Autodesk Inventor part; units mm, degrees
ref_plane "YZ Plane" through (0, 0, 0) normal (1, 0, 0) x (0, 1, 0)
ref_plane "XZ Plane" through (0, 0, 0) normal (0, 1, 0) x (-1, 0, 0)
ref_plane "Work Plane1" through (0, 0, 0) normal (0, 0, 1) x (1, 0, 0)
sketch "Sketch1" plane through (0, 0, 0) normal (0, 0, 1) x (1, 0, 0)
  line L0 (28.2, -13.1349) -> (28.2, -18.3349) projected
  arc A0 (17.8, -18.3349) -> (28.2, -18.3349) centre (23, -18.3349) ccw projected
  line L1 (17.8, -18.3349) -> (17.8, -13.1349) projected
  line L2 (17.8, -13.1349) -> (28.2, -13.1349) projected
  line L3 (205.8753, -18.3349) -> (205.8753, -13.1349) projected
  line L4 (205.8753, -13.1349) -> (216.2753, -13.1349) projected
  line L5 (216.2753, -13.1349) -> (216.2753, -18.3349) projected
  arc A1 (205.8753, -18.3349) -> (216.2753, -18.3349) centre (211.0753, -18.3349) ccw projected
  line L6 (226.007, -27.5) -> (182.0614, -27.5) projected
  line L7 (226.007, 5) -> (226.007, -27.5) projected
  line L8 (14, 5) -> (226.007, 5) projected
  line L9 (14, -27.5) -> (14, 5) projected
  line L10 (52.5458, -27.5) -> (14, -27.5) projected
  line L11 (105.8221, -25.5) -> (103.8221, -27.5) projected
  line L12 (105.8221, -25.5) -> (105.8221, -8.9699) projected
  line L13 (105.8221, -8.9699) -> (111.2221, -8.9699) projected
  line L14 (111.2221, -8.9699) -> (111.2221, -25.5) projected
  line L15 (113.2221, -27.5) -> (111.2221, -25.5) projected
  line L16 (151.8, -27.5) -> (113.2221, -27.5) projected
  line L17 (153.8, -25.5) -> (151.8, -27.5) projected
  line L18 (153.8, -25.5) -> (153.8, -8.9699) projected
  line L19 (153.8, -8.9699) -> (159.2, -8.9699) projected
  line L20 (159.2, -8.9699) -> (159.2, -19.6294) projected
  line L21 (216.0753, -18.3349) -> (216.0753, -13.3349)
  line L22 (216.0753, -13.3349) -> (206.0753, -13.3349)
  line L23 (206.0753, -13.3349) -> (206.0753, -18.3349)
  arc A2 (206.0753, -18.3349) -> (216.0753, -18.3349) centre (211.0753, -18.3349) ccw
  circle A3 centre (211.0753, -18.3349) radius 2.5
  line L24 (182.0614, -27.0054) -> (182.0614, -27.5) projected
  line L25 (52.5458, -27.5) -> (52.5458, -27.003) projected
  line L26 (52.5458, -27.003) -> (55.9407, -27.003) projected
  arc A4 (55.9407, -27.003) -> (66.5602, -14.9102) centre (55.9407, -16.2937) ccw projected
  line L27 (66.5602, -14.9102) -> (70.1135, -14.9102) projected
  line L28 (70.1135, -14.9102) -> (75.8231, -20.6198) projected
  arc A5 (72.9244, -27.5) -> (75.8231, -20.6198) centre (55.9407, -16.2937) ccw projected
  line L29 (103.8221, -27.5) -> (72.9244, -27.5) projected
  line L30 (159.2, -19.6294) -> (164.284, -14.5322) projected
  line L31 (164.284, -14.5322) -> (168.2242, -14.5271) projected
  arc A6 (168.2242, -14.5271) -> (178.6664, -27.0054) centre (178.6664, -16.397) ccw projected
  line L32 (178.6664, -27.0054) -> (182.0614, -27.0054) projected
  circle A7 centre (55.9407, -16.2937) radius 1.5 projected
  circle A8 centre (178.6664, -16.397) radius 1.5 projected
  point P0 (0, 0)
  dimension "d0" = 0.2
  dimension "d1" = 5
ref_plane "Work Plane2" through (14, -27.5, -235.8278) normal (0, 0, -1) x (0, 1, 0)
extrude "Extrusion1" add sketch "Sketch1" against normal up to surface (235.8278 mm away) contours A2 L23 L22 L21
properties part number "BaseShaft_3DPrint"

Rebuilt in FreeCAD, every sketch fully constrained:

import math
import FreeCAD as App
import Part
import Sketcher

V = App.Vector

doc = App.newDocument("Part")
body = doc.addObject("PartDesign::Body", "Body")

# Sketch on XY plane
sketch1 = body.newObject("Sketcher::SketchObject", "Sketch")
sketch1.AttachmentSupport = (doc.getObject("XY_Plane"), [""])
sketch1.MapMode = "FlatFace"
sketch1.addGeometry(Part.ArcOfCircle(Part.Circle(V(211.1, -18.3, 0), V(0, 0, 1), 5), math.radians(180), math.radians(360)), False)
sketch1.addGeometry(Part.LineSegment(V(216.1, -18.3, 0), V(216.1, -13.3, 0)), False)
sketch1.addGeometry(Part.LineSegment(V(216.1, -13.3, 0), V(206.1, -13.3, 0)), False)
sketch1.addGeometry(Part.LineSegment(V(206.1, -13.3, 0), V(206.1, -18.3, 0)), False)
sketch1.addGeometry(Part.Circle(V(211.1, -18.3, 0), V(0, 0, 1), 2.5), False)
sketch1.addConstraint(Sketcher.Constraint("Tangent", 0, 2, 1, 1))
sketch1.addConstraint(Sketcher.Constraint("Coincident", 1, 2, 2, 1))
sketch1.addConstraint(Sketcher.Constraint("Coincident", 2, 2, 3, 1))
sketch1.addConstraint(Sketcher.Constraint("Tangent", 3, 2, 0, 1))
sketch1.addConstraint(Sketcher.Constraint("Vertical", 1))
sketch1.addConstraint(Sketcher.Constraint("Horizontal", 2))
sketch1.addConstraint(Sketcher.Constraint("Vertical", 3))
sketch1.addConstraint(Sketcher.Constraint("Coincident", 4, 3, 0, 3))
sketch1.addConstraint(Sketcher.Constraint("Diameter", 4, 5.0))
sketch1.addConstraint(Sketcher.Constraint("Radius", 0, 5.0))
sketch1.addConstraint(Sketcher.Constraint("DistanceY", 1, 1, 1, 2, 5.0))
sketch1.addConstraint(Sketcher.Constraint("DistanceY", 0, 3, -1, 1, 18.335))
sketch1.addConstraint(Sketcher.Constraint("DistanceX", -1, 1, 0, 3, 211.0753))
pad1 = body.newObject("PartDesign::Pad", "Pad")
pad1.Profile = sketch1
pad1.Length = 235.8278
pad1.Reversed = True

doc.recompute()
